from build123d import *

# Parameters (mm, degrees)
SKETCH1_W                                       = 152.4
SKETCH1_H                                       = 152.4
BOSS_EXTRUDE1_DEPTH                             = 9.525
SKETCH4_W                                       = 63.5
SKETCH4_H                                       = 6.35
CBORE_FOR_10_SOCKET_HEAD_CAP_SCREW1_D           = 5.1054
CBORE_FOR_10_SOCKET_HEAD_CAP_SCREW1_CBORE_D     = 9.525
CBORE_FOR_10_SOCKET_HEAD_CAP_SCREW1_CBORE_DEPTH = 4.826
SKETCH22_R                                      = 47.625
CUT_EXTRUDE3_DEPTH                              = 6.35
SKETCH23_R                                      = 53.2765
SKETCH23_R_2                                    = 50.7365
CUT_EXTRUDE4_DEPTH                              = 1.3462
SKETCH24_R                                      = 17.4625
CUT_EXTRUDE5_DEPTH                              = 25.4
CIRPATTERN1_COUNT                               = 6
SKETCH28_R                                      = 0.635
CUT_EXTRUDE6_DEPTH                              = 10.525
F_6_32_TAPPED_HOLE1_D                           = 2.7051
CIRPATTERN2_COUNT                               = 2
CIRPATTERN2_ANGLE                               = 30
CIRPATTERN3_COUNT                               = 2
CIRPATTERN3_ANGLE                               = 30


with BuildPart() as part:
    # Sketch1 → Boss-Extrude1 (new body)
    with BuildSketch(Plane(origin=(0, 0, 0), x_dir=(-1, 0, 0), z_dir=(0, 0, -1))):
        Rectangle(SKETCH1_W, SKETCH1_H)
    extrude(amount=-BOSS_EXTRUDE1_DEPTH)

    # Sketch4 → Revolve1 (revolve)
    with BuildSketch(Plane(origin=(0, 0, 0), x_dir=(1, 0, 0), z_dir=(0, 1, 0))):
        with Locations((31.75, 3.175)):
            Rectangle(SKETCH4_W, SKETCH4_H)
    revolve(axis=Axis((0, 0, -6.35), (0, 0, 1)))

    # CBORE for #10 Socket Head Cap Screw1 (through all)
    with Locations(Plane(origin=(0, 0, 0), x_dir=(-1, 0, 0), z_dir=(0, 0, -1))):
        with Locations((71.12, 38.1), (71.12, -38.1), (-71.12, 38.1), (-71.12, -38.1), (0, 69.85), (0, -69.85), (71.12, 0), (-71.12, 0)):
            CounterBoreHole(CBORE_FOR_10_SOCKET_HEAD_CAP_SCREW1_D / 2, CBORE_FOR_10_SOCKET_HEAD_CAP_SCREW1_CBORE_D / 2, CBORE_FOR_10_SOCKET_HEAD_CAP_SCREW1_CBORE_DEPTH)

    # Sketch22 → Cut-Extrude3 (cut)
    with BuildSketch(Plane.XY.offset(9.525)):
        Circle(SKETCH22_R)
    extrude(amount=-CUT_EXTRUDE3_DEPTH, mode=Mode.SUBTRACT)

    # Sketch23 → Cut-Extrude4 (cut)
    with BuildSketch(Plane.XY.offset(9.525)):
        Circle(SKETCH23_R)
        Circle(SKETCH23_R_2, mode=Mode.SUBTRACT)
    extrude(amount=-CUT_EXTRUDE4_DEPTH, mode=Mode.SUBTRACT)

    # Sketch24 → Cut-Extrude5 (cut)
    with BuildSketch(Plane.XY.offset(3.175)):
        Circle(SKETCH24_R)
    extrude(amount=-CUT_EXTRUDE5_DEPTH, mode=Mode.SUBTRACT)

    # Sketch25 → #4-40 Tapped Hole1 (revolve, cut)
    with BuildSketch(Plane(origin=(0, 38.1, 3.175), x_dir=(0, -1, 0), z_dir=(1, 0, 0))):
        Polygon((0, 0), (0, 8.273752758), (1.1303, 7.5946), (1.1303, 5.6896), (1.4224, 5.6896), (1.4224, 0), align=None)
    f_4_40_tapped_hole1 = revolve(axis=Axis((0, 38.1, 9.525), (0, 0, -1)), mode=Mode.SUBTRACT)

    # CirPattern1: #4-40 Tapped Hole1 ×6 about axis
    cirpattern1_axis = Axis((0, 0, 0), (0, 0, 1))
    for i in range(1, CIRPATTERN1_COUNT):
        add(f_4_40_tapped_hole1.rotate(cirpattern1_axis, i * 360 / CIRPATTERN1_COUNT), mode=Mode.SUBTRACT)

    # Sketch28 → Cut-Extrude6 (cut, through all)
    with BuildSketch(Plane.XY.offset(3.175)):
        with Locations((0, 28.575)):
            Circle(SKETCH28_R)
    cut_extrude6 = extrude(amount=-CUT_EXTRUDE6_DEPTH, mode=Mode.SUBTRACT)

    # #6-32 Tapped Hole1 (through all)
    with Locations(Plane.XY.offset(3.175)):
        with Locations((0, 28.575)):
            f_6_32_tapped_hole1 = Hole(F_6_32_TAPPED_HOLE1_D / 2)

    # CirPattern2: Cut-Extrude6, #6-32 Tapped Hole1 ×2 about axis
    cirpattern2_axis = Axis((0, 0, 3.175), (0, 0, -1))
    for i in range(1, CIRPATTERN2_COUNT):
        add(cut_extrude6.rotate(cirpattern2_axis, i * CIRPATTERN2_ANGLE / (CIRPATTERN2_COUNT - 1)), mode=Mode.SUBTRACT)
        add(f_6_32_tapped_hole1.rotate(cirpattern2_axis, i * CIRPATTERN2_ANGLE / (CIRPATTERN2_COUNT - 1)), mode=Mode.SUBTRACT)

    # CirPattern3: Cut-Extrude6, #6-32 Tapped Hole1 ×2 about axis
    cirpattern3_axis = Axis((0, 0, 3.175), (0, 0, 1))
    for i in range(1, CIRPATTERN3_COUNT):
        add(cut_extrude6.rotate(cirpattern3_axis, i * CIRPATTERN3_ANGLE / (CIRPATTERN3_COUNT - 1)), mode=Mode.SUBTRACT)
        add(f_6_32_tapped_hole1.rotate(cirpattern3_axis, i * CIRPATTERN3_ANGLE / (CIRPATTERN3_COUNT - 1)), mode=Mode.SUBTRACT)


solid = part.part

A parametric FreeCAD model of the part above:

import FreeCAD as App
import Part
import Sketcher

V = App.Vector
Q = App.Units.Quantity

doc = App.newDocument("Part")
body = doc.addObject("PartDesign::Body", "Body")

sketch1 = body.newObject("Sketcher::SketchObject", "Sketch")
sketch1.AttachmentSupport = (doc.getObject("XY_Plane"), [""])
sketch1.MapMode = "FlatFace"
sketch1.addGeometry(Part.LineSegment(V(76.2, 76.2, 0), V(76.2, -76.2, 0)), False)
sketch1.addGeometry(Part.LineSegment(V(76.2, -76.2, 0), V(-76.2, -76.2, 0)), False)
sketch1.addGeometry(Part.LineSegment(V(-76.2, -76.2, 0), V(-76.2, 76.2, 0)), False)
sketch1.addGeometry(Part.LineSegment(V(-76.2, 76.2, 0), V(76.2, 76.2, 0)), False)
sketch1.addConstraint(Sketcher.Constraint("Coincident", 0, 2, 1, 1))
sketch1.addConstraint(Sketcher.Constraint("Coincident", 1, 2, 2, 1))
sketch1.addConstraint(Sketcher.Constraint("Coincident", 2, 2, 3, 1))
sketch1.addConstraint(Sketcher.Constraint("Coincident", 3, 2, 0, 1))
sketch1.addConstraint(Sketcher.Constraint("Vertical", 0))
sketch1.addConstraint(Sketcher.Constraint("Horizontal", 1))
sketch1.addConstraint(Sketcher.Constraint("Vertical", 2))
sketch1.addConstraint(Sketcher.Constraint("Horizontal", 3))
sketch1.addConstraint(Sketcher.Constraint("Symmetric", 0, 2, 2, 2, -1, 1))
sketch1.addConstraint(Sketcher.Constraint("Equal", 3, 0))
sketch1.addConstraint(Sketcher.Constraint("DistanceX", 1, 2, 1, 1, Q("6 in")))
pad1 = body.newObject("PartDesign::Pad", "Pad")
pad1.Profile = sketch1
pad1.Length = Q("0.375 in")

sketch2 = body.newObject("Sketcher::SketchObject", "Sketch001")
sketch2.AttachmentSupport = (doc.getObject("XZ_Plane"), [""])
sketch2.MapMode = "FlatFace"
sketch2.addGeometry(Part.LineSegment(V(0, -6.35, 0), V(0, 0, 0)), False)
sketch2.addGeometry(Part.LineSegment(V(0, 0, 0), V(63.5, 0, 0)), False)
sketch2.addGeometry(Part.LineSegment(V(63.5, 0, 0), V(63.5, -6.35, 0)), False)
sketch2.addGeometry(Part.LineSegment(V(63.5, -6.35, 0), V(0, -6.35, 0)), False)
sketch2.addConstraint(Sketcher.Constraint("Coincident", 0, 2, 1, 1))
sketch2.addConstraint(Sketcher.Constraint("Coincident", 1, 2, 2, 1))
sketch2.addConstraint(Sketcher.Constraint("Coincident", 2, 2, 3, 1))
sketch2.addConstraint(Sketcher.Constraint("Coincident", 3, 2, 0, 1))
sketch2.addConstraint(Sketcher.Constraint("Vertical", 0))
sketch2.addConstraint(Sketcher.Constraint("Horizontal", 1))
sketch2.addConstraint(Sketcher.Constraint("Vertical", 2))
sketch2.addConstraint(Sketcher.Constraint("Horizontal", 3))
sketch2.addConstraint(Sketcher.Constraint("Coincident", 0, 2, -1, 1))
sketch2.addConstraint(Sketcher.Constraint("DistanceX", 1, 1, 1, 2, Q("2.5 in")))
sketch2.addConstraint(Sketcher.Constraint("DistanceY", 0, 1, 0, 2, Q("0.25 in")))
revolution = body.newObject("PartDesign::Revolution", "Revolution")
revolution.Profile = sketch2
revolution.ReferenceAxis = (sketch2, ["V_Axis"])
revolution.Angle = 360

sketch3 = body.newObject("Sketcher::SketchObject", "Sketch002")
sketch3.AttachmentSupport = (doc.getObject("XY_Plane"), [""])
sketch3.MapMode = "FlatFace"
sketch3.addGeometry(Part.Circle(V(-71.12, 38.1, 0), V(0, 0, 1), 2.5527), False)
sketch3.addGeometry(Part.Circle(V(-71.12, -38.1, 0), V(0, 0, 1), 2.5527), False)
sketch3.addGeometry(Part.Circle(V(71.12, 38.1, 0), V(0, 0, 1), 2.5527), False)
sketch3.addGeometry(Part.Circle(V(71.12, -38.1, 0), V(0, 0, 1), 2.5527), False)
sketch3.addGeometry(Part.Circle(V(0, 69.85, 0), V(0, 0, 1), 2.5527), False)
sketch3.addGeometry(Part.Circle(V(0, -69.85, 0), V(0, 0, 1), 2.5527), False)
sketch3.addGeometry(Part.Circle(V(-71.12, 0, 0), V(0, 0, 1), 2.5527), False)
sketch3.addGeometry(Part.Circle(V(71.12, 0, 0), V(0, 0, 1), 2.5527), False)
sketch3.addConstraint(Sketcher.Constraint("Equal", 0, 1))
sketch3.addConstraint(Sketcher.Constraint("Equal", 1, 2))
sketch3.addConstraint(Sketcher.Constraint("Equal", 2, 3))
sketch3.addConstraint(Sketcher.Constraint("Equal", 3, 4))
sketch3.addConstraint(Sketcher.Constraint("Equal", 4, 5))
sketch3.addConstraint(Sketcher.Constraint("Equal", 5, 6))
sketch3.addConstraint(Sketcher.Constraint("Equal", 6, 7))
sketch3.addConstraint(Sketcher.Constraint("Symmetric", 1, 3, 2, 3, -1, 1))
sketch3.addConstraint(Sketcher.Constraint("Symmetric", 0, 3, 3, 3, -1, 1))
sketch3.addConstraint(Sketcher.Constraint("Symmetric", 4, 3, 5, 3, -1, 1))
sketch3.addConstraint(Sketcher.Constraint("Symmetric", 6, 3, 7, 3, -1, 1))
sketch3.addConstraint(Sketcher.Constraint("Symmetric", 0, 3, 2, 3, -2))
sketch3.addConstraint(Sketcher.Constraint("PointOnObject", 4, 3, -2))
sketch3.addConstraint(Sketcher.Constraint("PointOnObject", 6, 3, -1))
sketch3.addConstraint(Sketcher.Constraint("Vertical", 1, 3, 6, 3))
sketch3.addConstraint(Sketcher.Constraint("Diameter", 0, Q("0.201 in")))
sketch3.addConstraint(Sketcher.Constraint("DistanceY", 1, 3, 0, 3, Q("3 in")))
sketch3.addConstraint(Sketcher.Constraint("DistanceX", 0, 3, -1, 1, Q("2.8 in")))
sketch3.addConstraint(Sketcher.Constraint("DistanceY", 5, 3, 4, 3, Q("5.5 in")))
doc.recompute()
hole = body.newObject("PartDesign::Hole", "Hole")
hole.Profile = sketch3
hole.ThreadType = "None"
hole.Diameter = Q("0.201 in")
hole.DepthType = "ThroughAll"
hole.HoleCutType = "Counterbore"
hole.HoleCutDiameter = Q("0.375 in")
hole.HoleCutDepth = Q("0.19 in")
hole.Reversed = True

sketch4 = body.newObject("Sketcher::SketchObject", "Sketch003")
sketch4.AttachmentSupport = (doc.getObject("XY_Plane"), [""])
sketch4.MapMode = "FlatFace"
sketch4.AttachmentOffset = App.Placement(V(0, 0, 0.375 * 25.4), App.Rotation())
sketch4.addGeometry(Part.Circle(V(0, 0, 0), V(0, 0, 1), 47.625), False)
sketch4.addConstraint(Sketcher.Constraint("Coincident", 0, 3, -1, 1))
sketch4.addConstraint(Sketcher.Constraint("Diameter", 0, Q("3.75 in")))
pocket1 = body.newObject("PartDesign::Pocket", "Pocket")
pocket1.Profile = sketch4
pocket1.Length = Q("0.25 in")

sketch5 = body.newObject("Sketcher::SketchObject", "Sketch004")
sketch5.AttachmentSupport = (doc.getObject("XY_Plane"), [""])
sketch5.MapMode = "FlatFace"
sketch5.AttachmentOffset = App.Placement(V(0, 0, 0.375 * 25.4), App.Rotation())
sketch5.addGeometry(Part.Circle(V(0, 0, 0), V(0, 0, 1), 53.2765), False)
sketch5.addGeometry(Part.Circle(V(0, 0, 0), V(0, 0, 1), 50.7365), False)
sketch5.addConstraint(Sketcher.Constraint("Coincident", 0, 3, -1, 1))
sketch5.addConstraint(Sketcher.Constraint("Coincident", 1, 3, -1, 1))
sketch5.addConstraint(Sketcher.Constraint("Diameter", 0, Q("4.195 in")))
sketch5.addConstraint(Sketcher.Constraint("Diameter", 1, Q("3.995 in")))
pocket2 = body.newObject("PartDesign::Pocket", "Pocket001")
pocket2.Profile = sketch5
pocket2.Length = Q("0.053 in")

sketch6 = body.newObject("Sketcher::SketchObject", "Sketch005")
sketch6.AttachmentSupport = (doc.getObject("XY_Plane"), [""])
sketch6.MapMode = "FlatFace"
sketch6.AttachmentOffset = App.Placement(V(0, 0, 0.125 * 25.4), App.Rotation())
sketch6.addGeometry(Part.Circle(V(0, 0, 0), V(0, 0, 1), 17.4625), False)
sketch6.addConstraint(Sketcher.Constraint("Coincident", 0, 3, -1, 1))
sketch6.addConstraint(Sketcher.Constraint("Diameter", 0, Q("1.375 in")))
pocket3 = body.newObject("PartDesign::Pocket", "Pocket002")
pocket3.Profile = sketch6
pocket3.Length = Q("1 in")

sketch7 = body.newObject("Sketcher::SketchObject", "Sketch006")
sketch7.AttachmentSupport = (doc.getObject("YZ_Plane"), [""])
sketch7.MapMode = "FlatFace"
sketch7.addGeometry(Part.LineSegment(V(38.1, -5.098753, 0), V(38.1, 3.175, 0)), False)
sketch7.addGeometry(Part.LineSegment(V(38.1, 3.175, 0), V(36.6776, 3.175, 0)), False)
sketch7.addGeometry(Part.LineSegment(V(36.6776, 3.175, 0), V(36.6776, -2.5146, 0)), False)
sketch7.addGeometry(Part.LineSegment(V(36.6776, -2.5146, 0), V(36.9697, -2.5146, 0)), False)
sketch7.addGeometry(Part.LineSegment(V(36.9697, -2.5146, 0), V(36.9697, -4.4196, 0)), False)
sketch7.addGeometry(Part.LineSegment(V(36.9697, -4.4196, 0), V(38.1, -5.098753, 0)), False)
sketch7.addGeometry(Part.LineSegment(V(38.1, 3.175, 0), V(38.1, -5.098753, 0)), True)
sketch7.addConstraint(Sketcher.Constraint("Coincident", 0, 2, 1, 1))
sketch7.addConstraint(Sketcher.Constraint("Coincident", 1, 2, 2, 1))
sketch7.addConstraint(Sketcher.Constraint("Coincident", 2, 2, 3, 1))
sketch7.addConstraint(Sketcher.Constraint("Coincident", 3, 2, 4, 1))
sketch7.addConstraint(Sketcher.Constraint("Coincident", 4, 2, 5, 1))
sketch7.addConstraint(Sketcher.Constraint("Coincident", 5, 2, 0, 1))
sketch7.addConstraint(Sketcher.Constraint("Vertical", 0))
sketch7.addConstraint(Sketcher.Constraint("Horizontal", 1))
sketch7.addConstraint(Sketcher.Constraint("Vertical", 2))
sketch7.addConstraint(Sketcher.Constraint("Horizontal", 3))
sketch7.addConstraint(Sketcher.Constraint("Vertical", 4))
sketch7.addConstraint(Sketcher.Constraint("Vertical", 6))
sketch7.addConstraint(Sketcher.Constraint("Coincident", 6, 1, 0, 2))
sketch7.addConstraint(Sketcher.Constraint("Equal", 0, 6))
sketch7.addConstraint(Sketcher.Constraint("Angle", 5, Q("-31 deg")))
sketch7.addConstraint(Sketcher.Constraint("DistanceX", -1, 1, 0, 2, Q("1.5 in")))
sketch7.addConstraint(Sketcher.Constraint("DistanceX", 1, 2, 1, 1, Q("0.056 in")))
sketch7.addConstraint(Sketcher.Constraint("DistanceY", 2, 2, 2, 1, Q("0.224 in")))
sketch7.addConstraint(Sketcher.Constraint("DistanceY", 4, 2, 4, 1, Q("0.075 in")))
sketch7.addConstraint(Sketcher.Constraint("DistanceX", 3, 1, 3, 2, Q("0.0115 in")))
sketch7.addConstraint(Sketcher.Constraint("DistanceY", -1, 1, 0, 2, Q("0.125 in")))
groove = body.newObject("PartDesign::Groove", "Groove")
groove.Profile = sketch7
groove.ReferenceAxis = (sketch7, ["Axis0"])
groove.Angle = 360
doc.recompute()

polarpattern = body.newObject("PartDesign::PolarPattern", "PolarPattern")
polarpattern.Originals = [groove]
polarpattern.Axis = (doc.getObject("Z_Axis"), [""])
polarpattern.Angle = 360
polarpattern.Occurrences = 6
body.Tip = polarpattern

sketch8 = body.newObject("Sketcher::SketchObject", "Sketch007")
sketch8.AttachmentSupport = (doc.getObject("XY_Plane"), [""])
sketch8.MapMode = "FlatFace"
sketch8.AttachmentOffset = App.Placement(V(0, 0, 0.125 * 25.4), App.Rotation())
sketch8.addGeometry(Part.Circle(V(0, 28.575, 0), V(0, 0, 1), 0.635), False)
sketch8.addConstraint(Sketcher.Constraint("PointOnObject", 0, 3, -2))
sketch8.addConstraint(Sketcher.Constraint("Diameter", 0, Q("0.05 in")))
sketch8.addConstraint(Sketcher.Constraint("DistanceY", -1, 1, 0, 3, Q("1.125 in")))
pocket4 = body.newObject("PartDesign::Pocket", "Pocket003")
pocket4.Profile = sketch8
pocket4.Type = "ThroughAll"

sketch9 = body.newObject("Sketcher::SketchObject", "Sketch008")
sketch9.AttachmentSupport = (doc.getObject("XY_Plane"), [""])
sketch9.MapMode = "FlatFace"
sketch9.AttachmentOffset = App.Placement(V(0, 0, 0.125 * 25.4), App.Rotation())
sketch9.addGeometry(Part.Circle(V(0, 28.575, 0), V(0, 0, 1), 1.35255), False)
sketch9.addConstraint(Sketcher.Constraint("PointOnObject", 0, 3, -2))
sketch9.addConstraint(Sketcher.Constraint("Diameter", 0, Q("0.1065 in")))
sketch9.addConstraint(Sketcher.Constraint("DistanceY", -1, 1, 0, 3, Q("1.125 in")))
doc.recompute()
hole2 = body.newObject("PartDesign::Hole", "Hole001")
hole2.Profile = sketch9
hole2.ThreadType = "None"
hole2.Diameter = Q("0.1065 in")
hole2.DepthType = "ThroughAll"
doc.recompute()

polarpattern2 = body.newObject("PartDesign::PolarPattern", "PolarPattern001")
polarpattern2.Originals = [pocket4, hole2]
polarpattern2.Axis = (doc.getObject("Z_Axis"), [""])
polarpattern2.Angle = 30
polarpattern2.Occurrences = 2
polarpattern2.Reversed = True
body.Tip = polarpattern2
doc.recompute()

polarpattern3 = body.newObject("PartDesign::PolarPattern", "PolarPattern002")
polarpattern3.Originals = [pocket4, hole2]
polarpattern3.Axis = (doc.getObject("Z_Axis"), [""])
polarpattern3.Angle = 30
polarpattern3.Occurrences = 2
body.Tip = polarpattern3

doc.recompute()
